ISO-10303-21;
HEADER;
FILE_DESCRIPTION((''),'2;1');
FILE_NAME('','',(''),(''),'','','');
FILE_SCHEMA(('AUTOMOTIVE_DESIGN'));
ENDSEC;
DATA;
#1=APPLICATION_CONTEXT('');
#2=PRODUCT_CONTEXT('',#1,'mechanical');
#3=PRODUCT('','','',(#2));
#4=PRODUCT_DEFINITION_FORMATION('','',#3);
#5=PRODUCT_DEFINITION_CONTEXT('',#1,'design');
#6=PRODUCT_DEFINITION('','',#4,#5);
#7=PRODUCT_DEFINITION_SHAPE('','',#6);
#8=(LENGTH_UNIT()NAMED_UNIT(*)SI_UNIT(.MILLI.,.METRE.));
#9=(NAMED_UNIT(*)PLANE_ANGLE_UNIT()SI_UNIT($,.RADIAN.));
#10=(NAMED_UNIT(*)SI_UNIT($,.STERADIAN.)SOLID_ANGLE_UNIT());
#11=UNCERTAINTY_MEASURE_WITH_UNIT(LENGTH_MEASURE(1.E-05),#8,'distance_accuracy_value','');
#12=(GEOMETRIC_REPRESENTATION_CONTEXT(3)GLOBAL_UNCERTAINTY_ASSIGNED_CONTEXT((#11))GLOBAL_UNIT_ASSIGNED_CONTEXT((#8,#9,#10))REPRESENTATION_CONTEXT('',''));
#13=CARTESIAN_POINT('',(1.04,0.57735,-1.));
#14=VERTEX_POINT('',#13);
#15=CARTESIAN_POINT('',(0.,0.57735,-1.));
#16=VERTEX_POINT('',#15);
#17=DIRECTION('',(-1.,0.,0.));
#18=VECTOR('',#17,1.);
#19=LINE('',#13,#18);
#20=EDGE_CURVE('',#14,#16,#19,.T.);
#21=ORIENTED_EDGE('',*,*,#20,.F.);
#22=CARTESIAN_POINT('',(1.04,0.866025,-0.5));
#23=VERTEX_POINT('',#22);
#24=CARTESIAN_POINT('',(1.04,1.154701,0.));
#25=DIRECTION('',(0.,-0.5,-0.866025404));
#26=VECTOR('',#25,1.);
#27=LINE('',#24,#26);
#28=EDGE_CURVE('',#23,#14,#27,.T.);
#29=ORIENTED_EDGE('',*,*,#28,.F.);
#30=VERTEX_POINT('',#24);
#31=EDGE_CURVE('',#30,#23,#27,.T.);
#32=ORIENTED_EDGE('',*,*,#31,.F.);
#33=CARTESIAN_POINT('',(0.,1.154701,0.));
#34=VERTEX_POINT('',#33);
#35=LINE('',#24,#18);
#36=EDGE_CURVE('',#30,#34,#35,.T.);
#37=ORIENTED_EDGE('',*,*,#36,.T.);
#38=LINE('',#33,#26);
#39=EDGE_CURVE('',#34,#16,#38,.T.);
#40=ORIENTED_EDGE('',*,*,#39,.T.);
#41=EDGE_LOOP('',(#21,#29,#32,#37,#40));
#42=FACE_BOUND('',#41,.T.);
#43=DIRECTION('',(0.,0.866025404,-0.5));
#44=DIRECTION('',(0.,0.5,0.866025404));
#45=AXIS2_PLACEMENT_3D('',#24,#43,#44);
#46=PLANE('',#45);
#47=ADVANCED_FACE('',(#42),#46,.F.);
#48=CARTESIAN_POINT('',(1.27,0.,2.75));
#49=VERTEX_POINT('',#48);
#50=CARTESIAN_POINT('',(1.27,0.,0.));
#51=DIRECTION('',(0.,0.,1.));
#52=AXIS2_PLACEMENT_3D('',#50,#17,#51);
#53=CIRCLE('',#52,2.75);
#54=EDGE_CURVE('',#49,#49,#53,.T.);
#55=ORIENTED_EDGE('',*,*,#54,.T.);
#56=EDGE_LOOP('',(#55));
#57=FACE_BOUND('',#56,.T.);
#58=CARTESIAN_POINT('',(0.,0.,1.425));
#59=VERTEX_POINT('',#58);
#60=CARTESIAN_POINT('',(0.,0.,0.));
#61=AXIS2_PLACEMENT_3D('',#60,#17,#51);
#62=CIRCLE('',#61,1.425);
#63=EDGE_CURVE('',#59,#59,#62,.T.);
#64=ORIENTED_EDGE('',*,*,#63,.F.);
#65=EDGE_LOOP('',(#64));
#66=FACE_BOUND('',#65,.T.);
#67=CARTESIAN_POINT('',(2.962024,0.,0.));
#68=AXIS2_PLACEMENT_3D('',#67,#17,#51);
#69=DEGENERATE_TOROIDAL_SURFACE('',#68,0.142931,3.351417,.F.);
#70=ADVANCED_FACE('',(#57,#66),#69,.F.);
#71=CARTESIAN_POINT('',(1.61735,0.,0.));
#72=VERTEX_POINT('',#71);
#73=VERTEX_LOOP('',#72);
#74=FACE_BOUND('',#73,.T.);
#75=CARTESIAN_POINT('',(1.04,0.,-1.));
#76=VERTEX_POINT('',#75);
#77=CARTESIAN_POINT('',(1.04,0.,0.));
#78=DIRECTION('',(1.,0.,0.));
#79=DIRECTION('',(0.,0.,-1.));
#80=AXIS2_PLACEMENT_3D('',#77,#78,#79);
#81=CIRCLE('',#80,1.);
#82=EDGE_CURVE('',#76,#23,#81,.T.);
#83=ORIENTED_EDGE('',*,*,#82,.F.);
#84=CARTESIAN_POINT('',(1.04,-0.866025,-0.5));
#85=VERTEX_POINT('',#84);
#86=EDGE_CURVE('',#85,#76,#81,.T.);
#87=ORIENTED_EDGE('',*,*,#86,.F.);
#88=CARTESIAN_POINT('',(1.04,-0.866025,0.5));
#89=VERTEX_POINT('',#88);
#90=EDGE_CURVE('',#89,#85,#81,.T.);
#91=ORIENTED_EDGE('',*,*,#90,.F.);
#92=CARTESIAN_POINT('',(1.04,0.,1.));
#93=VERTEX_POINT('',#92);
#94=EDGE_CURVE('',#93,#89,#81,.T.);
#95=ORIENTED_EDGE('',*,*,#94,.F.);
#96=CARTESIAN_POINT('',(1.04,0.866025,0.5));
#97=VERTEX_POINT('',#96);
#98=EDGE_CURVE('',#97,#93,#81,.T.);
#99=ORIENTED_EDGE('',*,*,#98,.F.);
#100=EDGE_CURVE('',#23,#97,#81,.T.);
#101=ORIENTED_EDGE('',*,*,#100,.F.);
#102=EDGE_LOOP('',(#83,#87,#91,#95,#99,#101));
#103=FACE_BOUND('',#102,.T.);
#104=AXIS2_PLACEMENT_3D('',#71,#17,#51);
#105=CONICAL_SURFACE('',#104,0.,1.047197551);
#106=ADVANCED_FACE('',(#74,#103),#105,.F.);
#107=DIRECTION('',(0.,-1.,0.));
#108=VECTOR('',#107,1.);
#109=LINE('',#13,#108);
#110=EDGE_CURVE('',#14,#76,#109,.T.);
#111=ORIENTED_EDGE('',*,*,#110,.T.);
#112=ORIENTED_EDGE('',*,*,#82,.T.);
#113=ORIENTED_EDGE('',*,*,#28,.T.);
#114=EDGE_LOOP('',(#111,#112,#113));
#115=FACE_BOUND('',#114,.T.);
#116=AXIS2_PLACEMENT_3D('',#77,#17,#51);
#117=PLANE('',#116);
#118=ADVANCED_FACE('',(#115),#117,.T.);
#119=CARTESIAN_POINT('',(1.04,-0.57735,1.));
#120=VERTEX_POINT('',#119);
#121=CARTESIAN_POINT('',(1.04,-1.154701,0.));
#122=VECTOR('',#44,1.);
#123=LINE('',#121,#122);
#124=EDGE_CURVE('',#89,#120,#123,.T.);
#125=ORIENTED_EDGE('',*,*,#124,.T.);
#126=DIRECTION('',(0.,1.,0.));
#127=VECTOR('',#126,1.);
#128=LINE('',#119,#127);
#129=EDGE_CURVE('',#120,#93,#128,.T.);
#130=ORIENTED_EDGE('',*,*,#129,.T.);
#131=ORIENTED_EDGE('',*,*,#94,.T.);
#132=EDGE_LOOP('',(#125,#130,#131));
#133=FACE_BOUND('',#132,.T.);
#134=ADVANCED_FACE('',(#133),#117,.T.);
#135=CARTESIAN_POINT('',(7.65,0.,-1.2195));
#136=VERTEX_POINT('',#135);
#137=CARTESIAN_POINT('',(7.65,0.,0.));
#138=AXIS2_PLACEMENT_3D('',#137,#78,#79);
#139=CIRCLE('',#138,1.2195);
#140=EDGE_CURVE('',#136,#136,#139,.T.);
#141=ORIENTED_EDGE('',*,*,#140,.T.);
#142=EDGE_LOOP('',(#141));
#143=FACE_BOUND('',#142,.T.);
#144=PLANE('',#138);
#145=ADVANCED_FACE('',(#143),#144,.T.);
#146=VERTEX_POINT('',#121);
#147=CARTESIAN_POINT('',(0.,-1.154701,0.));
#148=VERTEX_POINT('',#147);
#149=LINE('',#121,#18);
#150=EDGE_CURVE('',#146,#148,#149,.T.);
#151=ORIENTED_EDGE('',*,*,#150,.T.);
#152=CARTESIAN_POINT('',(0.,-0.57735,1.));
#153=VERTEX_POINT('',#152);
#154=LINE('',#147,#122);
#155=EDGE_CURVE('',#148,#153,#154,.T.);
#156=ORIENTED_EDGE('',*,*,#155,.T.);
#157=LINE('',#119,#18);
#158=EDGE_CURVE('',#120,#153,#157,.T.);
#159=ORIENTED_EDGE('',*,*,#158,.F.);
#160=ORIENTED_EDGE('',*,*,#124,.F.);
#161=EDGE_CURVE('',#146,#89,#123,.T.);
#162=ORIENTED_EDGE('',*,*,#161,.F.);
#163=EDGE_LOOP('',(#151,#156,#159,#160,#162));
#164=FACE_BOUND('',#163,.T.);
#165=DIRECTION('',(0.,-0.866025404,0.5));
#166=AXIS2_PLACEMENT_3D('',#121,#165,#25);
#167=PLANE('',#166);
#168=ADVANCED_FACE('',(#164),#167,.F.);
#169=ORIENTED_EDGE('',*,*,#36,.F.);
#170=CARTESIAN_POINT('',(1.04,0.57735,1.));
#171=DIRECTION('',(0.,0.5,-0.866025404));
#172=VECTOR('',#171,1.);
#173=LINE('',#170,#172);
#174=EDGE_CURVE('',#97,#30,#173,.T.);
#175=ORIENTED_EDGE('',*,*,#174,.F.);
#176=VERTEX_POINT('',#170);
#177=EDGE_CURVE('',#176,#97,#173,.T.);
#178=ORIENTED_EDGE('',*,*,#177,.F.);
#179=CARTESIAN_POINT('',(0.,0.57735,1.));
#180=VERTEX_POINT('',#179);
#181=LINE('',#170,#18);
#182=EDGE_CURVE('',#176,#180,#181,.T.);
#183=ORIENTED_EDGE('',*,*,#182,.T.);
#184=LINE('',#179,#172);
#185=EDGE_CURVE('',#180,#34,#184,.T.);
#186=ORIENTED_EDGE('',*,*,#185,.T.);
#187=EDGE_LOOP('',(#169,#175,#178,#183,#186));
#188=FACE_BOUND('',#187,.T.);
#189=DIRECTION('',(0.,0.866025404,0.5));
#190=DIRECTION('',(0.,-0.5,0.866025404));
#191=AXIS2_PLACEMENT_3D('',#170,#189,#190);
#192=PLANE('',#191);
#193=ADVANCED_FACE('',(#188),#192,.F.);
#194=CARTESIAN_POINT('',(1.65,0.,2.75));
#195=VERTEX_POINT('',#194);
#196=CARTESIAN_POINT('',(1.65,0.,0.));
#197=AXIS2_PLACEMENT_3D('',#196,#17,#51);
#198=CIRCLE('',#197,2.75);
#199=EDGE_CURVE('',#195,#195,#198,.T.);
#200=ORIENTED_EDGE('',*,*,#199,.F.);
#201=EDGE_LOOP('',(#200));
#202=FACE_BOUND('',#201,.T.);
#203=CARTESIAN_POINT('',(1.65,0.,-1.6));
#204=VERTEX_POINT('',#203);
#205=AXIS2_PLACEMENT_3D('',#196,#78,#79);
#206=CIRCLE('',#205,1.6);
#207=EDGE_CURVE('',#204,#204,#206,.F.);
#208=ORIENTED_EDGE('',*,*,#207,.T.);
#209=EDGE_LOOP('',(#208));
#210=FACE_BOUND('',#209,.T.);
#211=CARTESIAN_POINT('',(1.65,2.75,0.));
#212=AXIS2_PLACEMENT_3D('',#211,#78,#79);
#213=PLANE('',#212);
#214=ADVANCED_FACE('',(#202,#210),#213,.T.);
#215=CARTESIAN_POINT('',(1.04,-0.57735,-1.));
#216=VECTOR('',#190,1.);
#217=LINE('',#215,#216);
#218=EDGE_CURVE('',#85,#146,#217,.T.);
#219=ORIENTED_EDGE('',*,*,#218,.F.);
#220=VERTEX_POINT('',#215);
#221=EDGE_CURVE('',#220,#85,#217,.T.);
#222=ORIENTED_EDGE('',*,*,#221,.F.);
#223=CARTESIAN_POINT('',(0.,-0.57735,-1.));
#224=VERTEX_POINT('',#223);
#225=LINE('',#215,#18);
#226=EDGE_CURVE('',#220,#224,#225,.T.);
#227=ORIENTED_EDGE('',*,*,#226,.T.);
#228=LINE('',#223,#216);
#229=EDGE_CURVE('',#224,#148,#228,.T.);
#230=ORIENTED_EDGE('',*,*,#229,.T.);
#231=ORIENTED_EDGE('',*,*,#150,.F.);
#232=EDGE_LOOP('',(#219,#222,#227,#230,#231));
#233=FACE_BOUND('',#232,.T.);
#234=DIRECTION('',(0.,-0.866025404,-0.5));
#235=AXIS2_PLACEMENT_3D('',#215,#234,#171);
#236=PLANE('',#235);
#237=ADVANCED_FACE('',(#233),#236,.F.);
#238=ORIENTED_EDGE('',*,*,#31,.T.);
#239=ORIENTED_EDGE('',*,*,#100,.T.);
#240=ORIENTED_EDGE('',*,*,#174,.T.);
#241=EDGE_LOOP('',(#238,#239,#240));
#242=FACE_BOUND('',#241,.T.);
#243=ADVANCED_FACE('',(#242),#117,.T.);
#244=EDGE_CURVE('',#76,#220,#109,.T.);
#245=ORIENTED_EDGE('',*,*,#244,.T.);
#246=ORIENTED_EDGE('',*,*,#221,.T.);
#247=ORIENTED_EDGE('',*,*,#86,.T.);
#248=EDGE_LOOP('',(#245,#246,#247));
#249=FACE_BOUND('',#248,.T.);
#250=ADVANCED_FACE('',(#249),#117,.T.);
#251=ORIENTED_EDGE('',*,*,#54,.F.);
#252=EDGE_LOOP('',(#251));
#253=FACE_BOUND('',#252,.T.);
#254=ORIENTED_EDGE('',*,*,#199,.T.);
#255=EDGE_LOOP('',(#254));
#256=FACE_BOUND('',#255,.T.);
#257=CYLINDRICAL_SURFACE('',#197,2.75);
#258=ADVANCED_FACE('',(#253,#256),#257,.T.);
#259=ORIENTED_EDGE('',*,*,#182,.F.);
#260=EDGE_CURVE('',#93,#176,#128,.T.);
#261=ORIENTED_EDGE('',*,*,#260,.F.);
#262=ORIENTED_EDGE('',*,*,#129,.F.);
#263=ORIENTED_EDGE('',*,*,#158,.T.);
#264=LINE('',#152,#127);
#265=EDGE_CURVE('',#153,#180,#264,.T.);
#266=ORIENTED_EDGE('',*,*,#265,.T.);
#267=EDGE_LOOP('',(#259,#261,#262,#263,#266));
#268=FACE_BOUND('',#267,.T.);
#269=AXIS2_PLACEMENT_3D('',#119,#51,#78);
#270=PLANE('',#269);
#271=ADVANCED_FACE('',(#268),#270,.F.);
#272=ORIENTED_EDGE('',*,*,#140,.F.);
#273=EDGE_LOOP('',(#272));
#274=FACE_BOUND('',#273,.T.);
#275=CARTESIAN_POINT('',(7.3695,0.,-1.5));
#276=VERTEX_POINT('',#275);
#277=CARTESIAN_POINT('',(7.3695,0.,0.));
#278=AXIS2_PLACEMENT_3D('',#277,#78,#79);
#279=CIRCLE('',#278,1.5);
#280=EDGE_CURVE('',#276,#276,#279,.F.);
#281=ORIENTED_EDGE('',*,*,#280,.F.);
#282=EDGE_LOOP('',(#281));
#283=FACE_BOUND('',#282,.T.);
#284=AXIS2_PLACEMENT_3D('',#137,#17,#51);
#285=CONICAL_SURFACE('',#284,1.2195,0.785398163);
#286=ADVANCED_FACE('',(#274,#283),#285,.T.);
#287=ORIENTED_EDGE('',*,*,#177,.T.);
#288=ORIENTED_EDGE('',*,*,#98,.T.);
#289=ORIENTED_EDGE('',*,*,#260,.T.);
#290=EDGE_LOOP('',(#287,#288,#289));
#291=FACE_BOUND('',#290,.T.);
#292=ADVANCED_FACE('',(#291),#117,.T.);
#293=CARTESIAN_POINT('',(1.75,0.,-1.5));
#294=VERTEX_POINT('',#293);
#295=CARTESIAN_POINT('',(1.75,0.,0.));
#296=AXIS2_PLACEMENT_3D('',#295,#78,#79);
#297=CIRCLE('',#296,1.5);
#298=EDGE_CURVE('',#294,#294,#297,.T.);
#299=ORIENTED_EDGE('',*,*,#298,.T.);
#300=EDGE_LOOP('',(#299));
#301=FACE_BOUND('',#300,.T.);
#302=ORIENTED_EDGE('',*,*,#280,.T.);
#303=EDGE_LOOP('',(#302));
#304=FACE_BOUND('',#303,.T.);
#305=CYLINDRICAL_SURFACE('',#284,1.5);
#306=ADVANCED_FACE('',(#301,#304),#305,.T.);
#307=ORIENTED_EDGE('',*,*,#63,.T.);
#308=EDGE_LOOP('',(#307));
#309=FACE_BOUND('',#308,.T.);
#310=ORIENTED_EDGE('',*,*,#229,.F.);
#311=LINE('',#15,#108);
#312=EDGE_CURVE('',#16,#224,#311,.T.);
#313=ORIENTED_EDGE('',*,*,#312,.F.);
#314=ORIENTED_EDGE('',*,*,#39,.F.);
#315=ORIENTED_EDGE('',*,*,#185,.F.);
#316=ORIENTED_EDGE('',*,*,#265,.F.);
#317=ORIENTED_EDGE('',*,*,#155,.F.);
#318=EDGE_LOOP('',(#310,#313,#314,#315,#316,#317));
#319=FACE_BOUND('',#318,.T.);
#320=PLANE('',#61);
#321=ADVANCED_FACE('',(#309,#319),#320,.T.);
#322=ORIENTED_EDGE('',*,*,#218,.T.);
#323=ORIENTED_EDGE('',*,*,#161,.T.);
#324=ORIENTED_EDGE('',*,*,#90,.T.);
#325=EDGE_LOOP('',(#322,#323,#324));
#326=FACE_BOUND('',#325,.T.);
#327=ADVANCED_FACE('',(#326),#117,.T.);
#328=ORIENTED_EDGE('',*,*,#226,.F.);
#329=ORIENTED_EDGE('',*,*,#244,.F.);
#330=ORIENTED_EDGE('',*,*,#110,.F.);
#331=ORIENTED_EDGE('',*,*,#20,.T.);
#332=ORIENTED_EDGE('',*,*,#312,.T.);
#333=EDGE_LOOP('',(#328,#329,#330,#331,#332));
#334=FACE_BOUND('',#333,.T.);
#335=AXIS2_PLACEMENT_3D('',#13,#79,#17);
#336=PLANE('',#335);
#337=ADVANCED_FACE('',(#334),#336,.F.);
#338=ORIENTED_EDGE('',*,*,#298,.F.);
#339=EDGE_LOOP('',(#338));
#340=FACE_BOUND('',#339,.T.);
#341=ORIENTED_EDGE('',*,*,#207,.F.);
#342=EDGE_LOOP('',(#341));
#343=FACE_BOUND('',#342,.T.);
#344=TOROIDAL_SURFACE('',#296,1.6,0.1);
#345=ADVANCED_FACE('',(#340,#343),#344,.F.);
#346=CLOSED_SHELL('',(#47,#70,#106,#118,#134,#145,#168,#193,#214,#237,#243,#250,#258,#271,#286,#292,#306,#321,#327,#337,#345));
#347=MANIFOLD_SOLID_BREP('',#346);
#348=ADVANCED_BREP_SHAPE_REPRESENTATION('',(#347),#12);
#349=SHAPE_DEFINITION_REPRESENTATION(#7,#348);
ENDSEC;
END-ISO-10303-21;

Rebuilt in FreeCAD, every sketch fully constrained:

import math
import FreeCAD as App
import Part
import Sketcher

V = App.Vector
Q = App.Units.Quantity


def edges_at(feature, points):
    """Names of the edges that pass closest to the given points."""
    edges = feature.Shape.Edges
    near = lambda p: min(range(len(edges)), key=lambda i: edges[i].distToShape(Part.Vertex(*p))[0])
    return sorted({f"Edge{near(p) + 1}" for p in points})


def add_polygon(sketch, points):
    """Adds a closed chain of lines whose ends are joined by coincident constraints."""
    first, n = sketch.GeometryCount, len(points)
    for a, b in zip(points, points[1:] + points[:1]):
        sketch.addGeometry(Part.LineSegment(App.Vector(*a, 0), App.Vector(*b, 0)), False)
    for i in range(n):
        sketch.addConstraint(Sketcher.Constraint("Coincident", first + i, 2, first + (i + 1) % n, 1))

doc = App.newDocument("Part")
params = doc.addObject("Spreadsheet::Sheet", "Params")
for row, (alias, value) in enumerate([
    ("sketch1_width", "1.65 mm"),
    ("sketch1_width2", "0.38 mm"),
    ("sketch1_height", "2.75 mm"),
    ("revolution_angle", "360 deg"),
    ("pocket1_length", "1.04 mm"),
    ("sketch3_height", "1 mm"),
    ("groove_angle", "360 deg"),
    ("sketch4_diameter", "3 mm"),
    ("pad1_length", "6 mm"),
    ("fillet_radius", "0.1 mm"),
    ("chamfer_size", "0.2805 mm"),
], start=1):
    params.set(f"A{row}", alias)
    params.set(f"B{row}", "=" + value)
    params.setAlias(f"B{row}", alias)

body = doc.addObject("PartDesign::Body", "Body")

sketch1 = body.newObject("Sketcher::SketchObject", "Sketch")
sketch1.AttachmentSupport = (doc.getObject("XY_Plane"), [""])
sketch1.MapMode = "FlatFace"
sketch1.addGeometry([
    Part.LineSegment(V(1.65, 2.75, 0), V(1.65, 0, 0)),
    Part.LineSegment(V(1.65, 0, 0), V(0, 0, 0)),
    Part.LineSegment(V(0, 0, 0), V(0, 1.43, 0)),
    Part.ArcOfCircle(Part.Circle(V(2.96, -0.14, 0), V(0, 0, 1), 3.35), math.radians(120), math.radians(152)),
    Part.LineSegment(V(1.27, 2.75, 0), V(1.65, 2.75, 0)),
], False)
sketch1.addConstraint([
    Sketcher.Constraint("Coincident", 0, 2, 1, 1),
    Sketcher.Constraint("Coincident", 1, 2, 2, 1),
    Sketcher.Constraint("Coincident", 2, 2, 3, 2),
    Sketcher.Constraint("Coincident", 3, 1, 4, 1),
    Sketcher.Constraint("Coincident", 4, 2, 0, 1),
    Sketcher.Constraint("Vertical", 0),
    Sketcher.Constraint("Horizontal", 1),
    Sketcher.Constraint("Vertical", 2),
    Sketcher.Constraint("Horizontal", 4),
    Sketcher.Constraint("Coincident", 1, 2, -1, 1),
    Sketcher.Constraint("DistanceX", 1, 2, 1, 1, 1.65),
    Sketcher.Constraint("DistanceX", 4, 1, 4, 2, 0.38),
    Sketcher.Constraint("DistanceY", 0, 2, 0, 1, 2.75),
    Sketcher.Constraint("DistanceY", 2, 1, 2, 2, 1.425),
    Sketcher.Constraint("Radius", 3, 3.351417),
])
sketch1.setExpression("Constraints[10]", "Params.sketch1_width")
sketch1.setExpression("Constraints[11]", "Params.sketch1_width2")
sketch1.setExpression("Constraints[12]", "Params.sketch1_height")
revolution = body.newObject("PartDesign::Revolution", "Revolution")
revolution.Profile = sketch1
revolution.ReferenceAxis = (sketch1, ["H_Axis"])
revolution.setExpression("Angle", "Params.revolution_angle")

sketch2 = body.newObject("Sketcher::SketchObject", "Sketch001")
sketch2.AttachmentSupport = (doc.getObject("YZ_Plane"), [""])
sketch2.MapMode = "FlatFace"
add_polygon(sketch2, [(0.6, -1), (-0.6, -1), (-1.2, 0), (-0.6, 1), (0.6, 1), (1.2, 0)])
sketch2.addConstraint([
    Sketcher.Constraint("Horizontal", 0),
    Sketcher.Constraint("Horizontal", 3),
    Sketcher.Constraint("Symmetric", 0, 2, 3, 2, -1, 1),
    Sketcher.Constraint("Symmetric", 1, 2, 4, 2, -1, 1),
    Sketcher.Constraint("PointOnObject", 1, 2, -1),
    Sketcher.Constraint("Parallel", 2, 5),
    Sketcher.Constraint("Vertical", 0, 2, 2, 2),
    Sketcher.Constraint("Angle", 1, Q("120 deg")),
    Sketcher.Constraint("DistanceY", 0, 2, -1, 1, 1.0),
    Sketcher.Constraint("DistanceX", 0, 2, 0, 1, 1.154701),
])
pocket1 = body.newObject("PartDesign::Pocket", "Pocket")
pocket1.Profile = sketch2
pocket1.setExpression("Length", "Params.pocket1_length")
pocket1.Reversed = True

sketch3 = body.newObject("Sketcher::SketchObject", "Sketch002")
sketch3.AttachmentSupport = (doc.getObject("XY_Plane"), [""])
sketch3.MapMode = "FlatFace"
add_polygon(sketch3, [(1, 1), (1, 0), (1.6, 0)])
sketch3.addConstraint([
    Sketcher.Constraint("Vertical", 0),
    Sketcher.Constraint("Horizontal", 1),
    Sketcher.Constraint("PointOnObject", 0, 2, -1),
    Sketcher.Constraint("DistanceY", 0, 2, 0, 1, 1.0),
    Sketcher.Constraint("Angle", 2, Q("120 deg")),
    Sketcher.Constraint("DistanceX", -1, 1, 0, 2, 1.04),
])
sketch3.setExpression("Constraints[6]", "Params.sketch3_height")
groove = body.newObject("PartDesign::Groove", "Groove")
groove.Profile = sketch3
groove.ReferenceAxis = (sketch3, ["H_Axis"])
groove.setExpression("Angle", "Params.groove_angle")

sketch4 = body.newObject("Sketcher::SketchObject", "Sketch003")
sketch4.AttachmentSupport = (doc.getObject("YZ_Plane"), [""])
sketch4.MapMode = "FlatFace"
sketch4.AttachmentOffset = App.Placement(V(0, 0, 1.65), App.Rotation())
sketch4.addGeometry(Part.Circle(V(0, 0, 0), V(0, 0, 1), 1.5), False)
sketch4.addConstraint([
    Sketcher.Constraint("Coincident", 0, 3, -1, 1),
    Sketcher.Constraint("Diameter", 0, 3.0),
])
sketch4.setExpression("Constraints[1]", "Params.sketch4_diameter")
pad1 = body.newObject("PartDesign::Pad", "Pad")
pad1.Profile = sketch4
pad1.setExpression("Length", "Params.pad1_length")
doc.recompute()

fillet = body.newObject("PartDesign::Fillet", "Fillet")
fillet.Base = (pad1, edges_at(pad1, [(1.65, 0, 1.5)]))
fillet.setExpression("Radius", "Params.fillet_radius")
doc.recompute()

chamfer = body.newObject("PartDesign::Chamfer", "Chamfer")
chamfer.Base = (fillet, edges_at(fillet, [(7.65, 0, 1.5)]))
chamfer.setExpression("Size", "Params.chamfer_size")

doc.recompute()
